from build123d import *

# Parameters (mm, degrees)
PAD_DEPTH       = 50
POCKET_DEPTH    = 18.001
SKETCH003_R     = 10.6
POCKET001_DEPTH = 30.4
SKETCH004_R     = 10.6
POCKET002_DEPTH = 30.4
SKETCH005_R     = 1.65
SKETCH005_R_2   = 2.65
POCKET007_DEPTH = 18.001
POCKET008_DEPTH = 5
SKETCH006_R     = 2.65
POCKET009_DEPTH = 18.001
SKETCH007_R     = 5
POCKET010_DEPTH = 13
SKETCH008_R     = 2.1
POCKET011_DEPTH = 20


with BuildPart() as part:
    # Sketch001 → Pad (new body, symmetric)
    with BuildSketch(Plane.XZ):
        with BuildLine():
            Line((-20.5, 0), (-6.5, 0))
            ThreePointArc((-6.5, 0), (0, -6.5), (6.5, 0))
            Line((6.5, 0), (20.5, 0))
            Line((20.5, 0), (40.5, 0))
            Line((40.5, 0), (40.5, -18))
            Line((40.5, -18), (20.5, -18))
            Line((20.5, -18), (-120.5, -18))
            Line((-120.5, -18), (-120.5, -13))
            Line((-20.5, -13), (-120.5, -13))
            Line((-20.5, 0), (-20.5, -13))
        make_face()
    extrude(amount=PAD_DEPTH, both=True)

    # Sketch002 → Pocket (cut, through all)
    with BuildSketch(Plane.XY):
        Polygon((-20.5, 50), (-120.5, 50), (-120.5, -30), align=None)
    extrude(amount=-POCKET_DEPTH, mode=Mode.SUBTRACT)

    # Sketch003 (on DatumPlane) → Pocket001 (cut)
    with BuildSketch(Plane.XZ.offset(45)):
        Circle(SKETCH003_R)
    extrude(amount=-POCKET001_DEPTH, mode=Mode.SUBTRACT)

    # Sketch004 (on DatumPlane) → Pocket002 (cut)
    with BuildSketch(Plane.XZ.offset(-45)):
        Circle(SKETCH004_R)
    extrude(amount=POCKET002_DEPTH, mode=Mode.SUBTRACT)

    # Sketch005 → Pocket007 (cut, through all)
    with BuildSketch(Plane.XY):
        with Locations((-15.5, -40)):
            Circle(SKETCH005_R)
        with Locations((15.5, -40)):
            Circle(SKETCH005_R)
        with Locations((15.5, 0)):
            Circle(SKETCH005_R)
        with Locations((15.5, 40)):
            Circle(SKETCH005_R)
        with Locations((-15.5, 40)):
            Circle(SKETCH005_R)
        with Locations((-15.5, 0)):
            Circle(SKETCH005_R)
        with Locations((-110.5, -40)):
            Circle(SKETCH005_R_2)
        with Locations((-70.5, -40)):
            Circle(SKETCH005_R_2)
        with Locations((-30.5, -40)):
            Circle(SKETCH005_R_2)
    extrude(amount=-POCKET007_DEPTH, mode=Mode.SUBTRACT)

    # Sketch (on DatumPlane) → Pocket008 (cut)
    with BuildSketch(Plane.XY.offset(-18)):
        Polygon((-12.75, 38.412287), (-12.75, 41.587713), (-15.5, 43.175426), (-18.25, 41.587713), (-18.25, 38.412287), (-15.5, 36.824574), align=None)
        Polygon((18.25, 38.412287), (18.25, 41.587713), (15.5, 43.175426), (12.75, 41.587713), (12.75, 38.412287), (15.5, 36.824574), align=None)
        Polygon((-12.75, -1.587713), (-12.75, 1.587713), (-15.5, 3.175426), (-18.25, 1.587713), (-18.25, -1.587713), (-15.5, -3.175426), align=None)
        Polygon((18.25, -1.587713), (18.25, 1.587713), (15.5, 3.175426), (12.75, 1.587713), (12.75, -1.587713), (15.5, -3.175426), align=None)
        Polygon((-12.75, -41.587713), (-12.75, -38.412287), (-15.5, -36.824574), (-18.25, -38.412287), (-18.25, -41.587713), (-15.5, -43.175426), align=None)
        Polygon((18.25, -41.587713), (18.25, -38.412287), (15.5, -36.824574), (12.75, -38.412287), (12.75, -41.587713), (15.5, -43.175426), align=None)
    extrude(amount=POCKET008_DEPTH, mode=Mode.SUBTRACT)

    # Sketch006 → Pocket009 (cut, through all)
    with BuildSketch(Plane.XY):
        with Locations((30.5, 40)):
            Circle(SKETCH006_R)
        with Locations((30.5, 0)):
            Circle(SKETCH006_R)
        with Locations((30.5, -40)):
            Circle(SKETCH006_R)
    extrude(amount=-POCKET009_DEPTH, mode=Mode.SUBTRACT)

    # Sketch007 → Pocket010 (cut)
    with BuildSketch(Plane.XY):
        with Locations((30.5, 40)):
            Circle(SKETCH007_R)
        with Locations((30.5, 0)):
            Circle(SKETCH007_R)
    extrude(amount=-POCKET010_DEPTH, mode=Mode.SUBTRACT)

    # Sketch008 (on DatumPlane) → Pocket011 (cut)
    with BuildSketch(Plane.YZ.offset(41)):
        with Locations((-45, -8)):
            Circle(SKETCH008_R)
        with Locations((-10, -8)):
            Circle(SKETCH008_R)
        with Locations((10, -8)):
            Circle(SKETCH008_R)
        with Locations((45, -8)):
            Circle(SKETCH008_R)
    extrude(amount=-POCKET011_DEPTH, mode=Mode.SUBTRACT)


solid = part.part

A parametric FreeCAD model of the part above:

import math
import FreeCAD as App
import Part
import Sketcher

V = App.Vector
Q = App.Units.Quantity


def add_polygon(sketch, points):
    """Adds a closed chain of lines whose ends are joined by coincident constraints."""
    first, n = sketch.GeometryCount, len(points)
    for a, b in zip(points, points[1:] + points[:1]):
        sketch.addGeometry(Part.LineSegment(App.Vector(*a, 0), App.Vector(*b, 0)), False)
    for i in range(n):
        sketch.addConstraint(Sketcher.Constraint("Coincident", first + i, 2, first + (i + 1) % n, 1))

doc = App.newDocument("Part")
body = doc.addObject("PartDesign::Body", "Body")

# Sketch on XZ plane
sketch1 = body.newObject("Sketcher::SketchObject", "Sketch")
sketch1.AttachmentSupport = (doc.getObject("XZ_Plane"), [""])
sketch1.MapMode = "FlatFace"
sketch1.addGeometry([
    Part.LineSegment(V(-6.5, 0, 0), V(-20.5, 0, 0)),  # 0
    Part.LineSegment(V(-20.5, 0, 0), V(-20.5, -13, 0)),  # 1
    Part.LineSegment(V(-20.5, -13, 0), V(-120.5, -13, 0)),  # 2
    Part.LineSegment(V(-120.5, -13, 0), V(-120.5, -18, 0)),  # 3
    Part.LineSegment(V(-120.5, -18, 0), V(40.5, -18, 0)),  # 4
    Part.LineSegment(V(40.5, -18, 0), V(40.5, 0, 0)),  # 5
    Part.LineSegment(V(40.5, 0, 0), V(6.5, 0, 0)),  # 6
    Part.ArcOfCircle(Part.Circle(V(0, 0, 0), V(0, 0, 1), 6.5), math.radians(180), math.radians(360)),  # 7
], False)
sketch1.addConstraint([
    Sketcher.Constraint("Coincident", 0, 2, 1, 1),
    Sketcher.Constraint("Coincident", 1, 2, 2, 1),
    Sketcher.Constraint("Coincident", 2, 2, 3, 1),
    Sketcher.Constraint("Coincident", 3, 2, 4, 1),
    Sketcher.Constraint("Coincident", 4, 2, 5, 1),
    Sketcher.Constraint("Coincident", 5, 2, 6, 1),
    Sketcher.Constraint("Coincident", 6, 2, 7, 2),
    Sketcher.Constraint("Coincident", 7, 1, 0, 1),
    Sketcher.Constraint("Horizontal", 0),
    Sketcher.Constraint("Vertical", 1),
    Sketcher.Constraint("Horizontal", 2),
    Sketcher.Constraint("Vertical", 3),
    Sketcher.Constraint("Horizontal", 4),
    Sketcher.Constraint("Vertical", 5),
    Sketcher.Constraint("Horizontal", 6),
    Sketcher.Constraint("Coincident", 7, 3, -1, 1),
    Sketcher.Constraint("PointOnObject", 0, 2, -1),
    Sketcher.Constraint("PointOnObject", 5, 2, -1),
    Sketcher.Constraint("Radius", 7, 6.5),
    Sketcher.Constraint("DistanceX", 0, 2, 0, 1, 14.0),
    Sketcher.Constraint("DistanceX", 2, 2, 2, 1, 100.0),
    Sketcher.Constraint("DistanceX", 4, 1, 4, 2, 161.0),
    Sketcher.Constraint("DistanceY", 1, 2, 1, 1, 13.0),
    Sketcher.Constraint("DistanceY", 3, 2, 3, 1, 5.0),
])
pad1 = body.newObject("PartDesign::Pad", "Pad")
pad1.Profile = sketch1
pad1.Length = 100
pad1.Midplane = True

# Sketch on XY plane
sketch2 = body.newObject("Sketcher::SketchObject", "Sketch001")
sketch2.AttachmentSupport = (doc.getObject("XY_Plane"), [""])
sketch2.MapMode = "FlatFace"
add_polygon(sketch2, [(-20.5, 50), (-120.5, 50), (-120.5, -30)])  # lines 0-2
sketch2.addConstraint([
    Sketcher.Constraint("Horizontal", 0),
    Sketcher.Constraint("Vertical", 1),
    Sketcher.Constraint("DistanceX", 0, 2, 0, 1, 100.0),
    Sketcher.Constraint("DistanceY", 1, 2, 1, 1, 80.0),
    Sketcher.Constraint("DistanceY", -1, 1, 0, 2, 50.0),
    Sketcher.Constraint("DistanceX", 0, 2, -1, 1, 120.5),
])
pocket1 = body.newObject("PartDesign::Pocket", "Pocket")
pocket1.Profile = sketch2
pocket1.Type = "ThroughAll"

# Sketch on XZ plane
sketch3 = body.newObject("Sketcher::SketchObject", "Sketch002")
sketch3.AttachmentSupport = (doc.getObject("XZ_Plane"), [""])
sketch3.MapMode = "FlatFace"
sketch3.AttachmentOffset = App.Placement(V(0, 0, 45), App.Rotation())
sketch3.addGeometry(Part.Circle(V(0, 0, 0), V(0, 0, 1), 10.6), False)
sketch3.addConstraint([
    Sketcher.Constraint("Coincident", 0, 3, -1, 1),
    Sketcher.Constraint("Diameter", 0, 21.2),
])
pocket2 = body.newObject("PartDesign::Pocket", "Pocket001")
pocket2.Profile = sketch3
pocket2.Length = 30.4

# Sketch on XZ plane
sketch4 = body.newObject("Sketcher::SketchObject", "Sketch003")
sketch4.AttachmentSupport = (doc.getObject("XZ_Plane"), [""])
sketch4.MapMode = "FlatFace"
sketch4.AttachmentOffset = App.Placement(V(0, 0, -45), App.Rotation())
sketch4.addGeometry(Part.Circle(V(0, 0, 0), V(0, 0, 1), 10.6), False)
sketch4.addConstraint([
    Sketcher.Constraint("Coincident", 0, 3, -1, 1),
    Sketcher.Constraint("Diameter", 0, 21.2),
])
pocket3 = body.newObject("PartDesign::Pocket", "Pocket002")
pocket3.Profile = sketch4
pocket3.Length = 30.4
pocket3.Reversed = True

# Sketch on XY plane
sketch5 = body.newObject("Sketcher::SketchObject", "Sketch004")
sketch5.AttachmentSupport = (doc.getObject("XY_Plane"), [""])
sketch5.MapMode = "FlatFace"
sketch5.addGeometry([
    Part.Circle(V(-15.5, -40, 0), V(0, 0, 1), 1.65),  # 0
    Part.Circle(V(15.5, -40, 0), V(0, 0, 1), 1.65),  # 1
    Part.Circle(V(15.5, 0, 0), V(0, 0, 1), 1.65),  # 2
    Part.Circle(V(15.5, 40, 0), V(0, 0, 1), 1.65),  # 3
    Part.Circle(V(-15.5, 40, 0), V(0, 0, 1), 1.65),  # 4
    Part.Circle(V(-15.5, 0, 0), V(0, 0, 1), 1.65),  # 5
    Part.Circle(V(-110.5, -40, 0), V(0, 0, 1), 2.65),  # 6
    Part.Circle(V(-70.5, -40, 0), V(0, 0, 1), 2.65),  # 7
    Part.Circle(V(-30.5, -40, 0), V(0, 0, 1), 2.65),  # 8
], False)
sketch5.addConstraint([
    Sketcher.Constraint("Equal", 0, 1),
    Sketcher.Constraint("Equal", 1, 2),
    Sketcher.Constraint("Equal", 2, 3),
    Sketcher.Constraint("Equal", 3, 4),
    Sketcher.Constraint("Equal", 4, 5),
    Sketcher.Constraint("Equal", 6, 7),
    Sketcher.Constraint("Equal", 7, 8),
    Sketcher.Constraint("Symmetric", 0, 3, 3, 3, -1, 1),
    Sketcher.Constraint("Symmetric", 1, 3, 4, 3, -1, 1),
    Sketcher.Constraint("Symmetric", 2, 3, 5, 3, -1, 1),
    Sketcher.Constraint("Symmetric", 0, 3, 1, 3, -2),
    Sketcher.Constraint("PointOnObject", 2, 3, -1),
    Sketcher.Constraint("Horizontal", 1, 3, 6, 3),
    Sketcher.Constraint("Horizontal", 6, 3, 7, 3),
    Sketcher.Constraint("Horizontal", 7, 3, 8, 3),
    Sketcher.Constraint("Vertical", 1, 3, 2, 3),
    Sketcher.Constraint("Diameter", 0, 3.3),
    Sketcher.Constraint("Diameter", 6, 5.3),
    Sketcher.Constraint("DistanceY", 0, 3, -1, 1, 40.0),
    Sketcher.Constraint("DistanceX", 0, 3, 1, 3, 31.0),
    Sketcher.Constraint("DistanceX", 6, 3, 0, 3, 95.0),
    Sketcher.Constraint("DistanceX", 6, 3, 7, 3, 40.0),
    Sketcher.Constraint("DistanceX", 8, 3, 0, 3, 15.0),
])
pocket4 = body.newObject("PartDesign::Pocket", "Pocket003")
pocket4.Profile = sketch5
pocket4.Type = "ThroughAll"

# Sketch on XY plane
sketch6 = body.newObject("Sketcher::SketchObject", "Sketch005")
sketch6.AttachmentSupport = (doc.getObject("XY_Plane"), [""])
sketch6.MapMode = "FlatFace"
sketch6.AttachmentOffset = App.Placement(V(0, 0, -18), App.Rotation())
add_polygon(sketch6, [(-12.75, 38.412287), (-12.75, 41.587713), (-15.5, 43.175426), (-18.25, 41.587713), (-18.25, 38.412287), (-15.5, 36.824574)])  # lines 0-5
add_polygon(sketch6, [(18.25, 38.412287), (18.25, 41.587713), (15.5, 43.175426), (12.75, 41.587713), (12.75, 38.412287), (15.5, 36.824574)])  # lines 6-11
add_polygon(sketch6, [(-12.75, -1.587713), (-12.75, 1.587713), (-15.5, 3.175426), (-18.25, 1.587713), (-18.25, -1.587713), (-15.5, -3.175426)])  # lines 12-17
add_polygon(sketch6, [(18.25, -1.587713), (18.25, 1.587713), (15.5, 3.175426), (12.75, 1.587713), (12.75, -1.587713), (15.5, -3.175426)])  # lines 18-23
add_polygon(sketch6, [(-12.75, -41.587713), (-12.75, -38.412287), (-15.5, -36.824574), (-18.25, -38.412287), (-18.25, -41.587713), (-15.5, -43.175426)])  # lines 24-29
add_polygon(sketch6, [(18.25, -41.587713), (18.25, -38.412287), (15.5, -36.824574), (12.75, -38.412287), (12.75, -41.587713), (15.5, -43.175426)])  # lines 30-35
sketch6.addConstraint([
    Sketcher.Constraint("Vertical", 0),
    Sketcher.Constraint("Vertical", 3),
    Sketcher.Constraint("Vertical", 6),
    Sketcher.Constraint("Vertical", 9),
    Sketcher.Constraint("Vertical", 12),
    Sketcher.Constraint("Vertical", 15),
    Sketcher.Constraint("Vertical", 18),
    Sketcher.Constraint("Vertical", 21),
    Sketcher.Constraint("Vertical", 24),
    Sketcher.Constraint("Vertical", 27),
    Sketcher.Constraint("Vertical", 30),
    Sketcher.Constraint("Vertical", 33),
    Sketcher.Constraint("Symmetric", 15, 2, 18, 2, -1, 1),
    Sketcher.Constraint("Symmetric", 16, 2, 19, 2, -1, 1),
    Sketcher.Constraint("Symmetric", 17, 2, 20, 2, -1, 1),
    Sketcher.Constraint("Symmetric", 13, 2, 22, 2, -1, 1),
    Sketcher.Constraint("Symmetric", 9, 2, 24, 2, -1, 1),
    Sketcher.Constraint("Symmetric", 10, 2, 25, 2, -1, 1),
    Sketcher.Constraint("Symmetric", 11, 2, 26, 2, -1, 1),
    Sketcher.Constraint("Symmetric", 7, 2, 28, 2, -1, 1),
    Sketcher.Constraint("Symmetric", 3, 2, 30, 2, -1, 1),
    Sketcher.Constraint("Symmetric", 4, 2, 31, 2, -1, 1),
    Sketcher.Constraint("Symmetric", 5, 2, 32, 2, -1, 1),
    Sketcher.Constraint("Symmetric", 1, 2, 34, 2, -1, 1),
    Sketcher.Constraint("Symmetric", 2, 2, 6, 2, -2),
    Sketcher.Constraint("Symmetric", 1, 2, 7, 2, -2),
    Sketcher.Constraint("Symmetric", 0, 2, 8, 2, -2),
    Sketcher.Constraint("Symmetric", 4, 2, 10, 2, -2),
    Sketcher.Constraint("Symmetric", 13, 2, 19, 2, -2),
    Sketcher.Constraint("Parallel", 1, 4),
    Sketcher.Constraint("Parallel", 2, 5),
    Sketcher.Constraint("Parallel", 4, 7),
    Sketcher.Constraint("Parallel", 7, 10),
    Sketcher.Constraint("Parallel", 8, 11),
    Sketcher.Constraint("Parallel", 10, 13),
    Sketcher.Constraint("Parallel", 11, 14),
    Sketcher.Constraint("Parallel", 13, 16),
    Sketcher.Constraint("Parallel", 14, 17),
    Sketcher.Constraint("Parallel", 19, 22),
    Sketcher.Constraint("Parallel", 20, 23),
    Sketcher.Constraint("Parallel", 25, 28),
    Sketcher.Constraint("Parallel", 26, 29),
    Sketcher.Constraint("Parallel", 31, 34),
    Sketcher.Constraint("Parallel", 32, 35),
    Sketcher.Constraint("Horizontal", 0, 2, 2, 2),
    Sketcher.Constraint("Horizontal", 3, 2, 5, 2),
    Sketcher.Constraint("Horizontal", 12, 2, 14, 2),
    Sketcher.Constraint("Vertical", 5, 2, 12, 2),
    Sketcher.Constraint("Vertical", 4, 2, 13, 2),
    Sketcher.Constraint("Equal", 9, 12),
    Sketcher.Constraint("Angle", 1, Q("150.000004 deg")),
    Sketcher.Constraint("DistanceX", 0, 2, 6, 2, 31.0),
    Sketcher.Constraint("DistanceY", 12, 2, 0, 2, 40.0),
    Sketcher.Constraint("DistanceX", 2, 2, 0, 2, 5.5),
    Sketcher.Constraint("DistanceY", 0, 1, 0, 2, 3.175426),
])
pocket5 = body.newObject("PartDesign::Pocket", "Pocket004")
pocket5.Profile = sketch6
pocket5.Length = 5
pocket5.Reversed = True

# Sketch on XY plane
sketch7 = body.newObject("Sketcher::SketchObject", "Sketch006")
sketch7.AttachmentSupport = (doc.getObject("XY_Plane"), [""])
sketch7.MapMode = "FlatFace"
sketch7.addGeometry([
    Part.Circle(V(30.5, 40, 0), V(0, 0, 1), 2.65),
    Part.Circle(V(30.5, 0, 0), V(0, 0, 1), 2.65),
    Part.Circle(V(30.5, -40, 0), V(0, 0, 1), 2.65),
], False)
sketch7.addConstraint([
    Sketcher.Constraint("Equal", 0, 1),
    Sketcher.Constraint("Equal", 1, 2),
    Sketcher.Constraint("Symmetric", 0, 3, 2, 3, -1),
    Sketcher.Constraint("PointOnObject", 1, 3, -1),
    Sketcher.Constraint("Vertical", 0, 3, 1, 3),
    Sketcher.Constraint("Diameter", 0, 5.3),
    Sketcher.Constraint("DistanceY", -1, 1, 0, 3, 40.0),
    Sketcher.Constraint("DistanceX", -1, 1, 0, 3, 30.5),
])
pocket6 = body.newObject("PartDesign::Pocket", "Pocket005")
pocket6.Profile = sketch7
pocket6.Type = "ThroughAll"

# Sketch on XY plane
sketch8 = body.newObject("Sketcher::SketchObject", "Sketch007")
sketch8.AttachmentSupport = (doc.getObject("XY_Plane"), [""])
sketch8.MapMode = "FlatFace"
sketch8.addGeometry([
    Part.Circle(V(30.5, 40, 0), V(0, 0, 1), 5),
    Part.Circle(V(30.5, 0, 0), V(0, 0, 1), 5),
], False)
sketch8.addConstraint([
    Sketcher.Constraint("Equal", 0, 1),
    Sketcher.Constraint("PointOnObject", 1, 3, -1),
    Sketcher.Constraint("Vertical", 0, 3, 1, 3),
    Sketcher.Constraint("Diameter", 0, 10.0),
    Sketcher.Constraint("DistanceY", -1, 1, 0, 3, 40.0),
    Sketcher.Constraint("DistanceX", -1, 1, 0, 3, 30.5),
])
pocket7 = body.newObject("PartDesign::Pocket", "Pocket006")
pocket7.Profile = sketch8
pocket7.Length = 13

# Sketch on YZ plane
sketch9 = body.newObject("Sketcher::SketchObject", "Sketch008")
sketch9.AttachmentSupport = (doc.getObject("YZ_Plane"), [""])
sketch9.MapMode = "FlatFace"
sketch9.AttachmentOffset = App.Placement(V(0, 0, 41), App.Rotation())
sketch9.addGeometry([
    Part.Circle(V(-45, -8, 0), V(0, 0, 1), 2.1),
    Part.Circle(V(-10, -8, 0), V(0, 0, 1), 2.1),
    Part.Circle(V(10, -8, 0), V(0, 0, 1), 2.1),
    Part.Circle(V(45, -8, 0), V(0, 0, 1), 2.1),
], False)
sketch9.addConstraint([
    Sketcher.Constraint("Equal", 0, 1),
    Sketcher.Constraint("Equal", 1, 2),
    Sketcher.Constraint("Equal", 2, 3),
    Sketcher.Constraint("Symmetric", 1, 3, 2, 3, -2),
    Sketcher.Constraint("Symmetric", 0, 3, 3, 3, -2),
    Sketcher.Constraint("Horizontal", 0, 3, 1, 3),
    Sketcher.Constraint("Diameter", 0, 4.2),
    Sketcher.Constraint("DistanceX", 0, 3, -1, 1, 45.0),
    Sketcher.Constraint("DistanceY", 0, 3, -1, 1, 8.0),
    Sketcher.Constraint("DistanceX", 1, 3, -1, 1, 10.0),
])
pocket8 = body.newObject("PartDesign::Pocket", "Pocket007")
pocket8.Profile = sketch9
pocket8.Length = 20

doc.recompute()
